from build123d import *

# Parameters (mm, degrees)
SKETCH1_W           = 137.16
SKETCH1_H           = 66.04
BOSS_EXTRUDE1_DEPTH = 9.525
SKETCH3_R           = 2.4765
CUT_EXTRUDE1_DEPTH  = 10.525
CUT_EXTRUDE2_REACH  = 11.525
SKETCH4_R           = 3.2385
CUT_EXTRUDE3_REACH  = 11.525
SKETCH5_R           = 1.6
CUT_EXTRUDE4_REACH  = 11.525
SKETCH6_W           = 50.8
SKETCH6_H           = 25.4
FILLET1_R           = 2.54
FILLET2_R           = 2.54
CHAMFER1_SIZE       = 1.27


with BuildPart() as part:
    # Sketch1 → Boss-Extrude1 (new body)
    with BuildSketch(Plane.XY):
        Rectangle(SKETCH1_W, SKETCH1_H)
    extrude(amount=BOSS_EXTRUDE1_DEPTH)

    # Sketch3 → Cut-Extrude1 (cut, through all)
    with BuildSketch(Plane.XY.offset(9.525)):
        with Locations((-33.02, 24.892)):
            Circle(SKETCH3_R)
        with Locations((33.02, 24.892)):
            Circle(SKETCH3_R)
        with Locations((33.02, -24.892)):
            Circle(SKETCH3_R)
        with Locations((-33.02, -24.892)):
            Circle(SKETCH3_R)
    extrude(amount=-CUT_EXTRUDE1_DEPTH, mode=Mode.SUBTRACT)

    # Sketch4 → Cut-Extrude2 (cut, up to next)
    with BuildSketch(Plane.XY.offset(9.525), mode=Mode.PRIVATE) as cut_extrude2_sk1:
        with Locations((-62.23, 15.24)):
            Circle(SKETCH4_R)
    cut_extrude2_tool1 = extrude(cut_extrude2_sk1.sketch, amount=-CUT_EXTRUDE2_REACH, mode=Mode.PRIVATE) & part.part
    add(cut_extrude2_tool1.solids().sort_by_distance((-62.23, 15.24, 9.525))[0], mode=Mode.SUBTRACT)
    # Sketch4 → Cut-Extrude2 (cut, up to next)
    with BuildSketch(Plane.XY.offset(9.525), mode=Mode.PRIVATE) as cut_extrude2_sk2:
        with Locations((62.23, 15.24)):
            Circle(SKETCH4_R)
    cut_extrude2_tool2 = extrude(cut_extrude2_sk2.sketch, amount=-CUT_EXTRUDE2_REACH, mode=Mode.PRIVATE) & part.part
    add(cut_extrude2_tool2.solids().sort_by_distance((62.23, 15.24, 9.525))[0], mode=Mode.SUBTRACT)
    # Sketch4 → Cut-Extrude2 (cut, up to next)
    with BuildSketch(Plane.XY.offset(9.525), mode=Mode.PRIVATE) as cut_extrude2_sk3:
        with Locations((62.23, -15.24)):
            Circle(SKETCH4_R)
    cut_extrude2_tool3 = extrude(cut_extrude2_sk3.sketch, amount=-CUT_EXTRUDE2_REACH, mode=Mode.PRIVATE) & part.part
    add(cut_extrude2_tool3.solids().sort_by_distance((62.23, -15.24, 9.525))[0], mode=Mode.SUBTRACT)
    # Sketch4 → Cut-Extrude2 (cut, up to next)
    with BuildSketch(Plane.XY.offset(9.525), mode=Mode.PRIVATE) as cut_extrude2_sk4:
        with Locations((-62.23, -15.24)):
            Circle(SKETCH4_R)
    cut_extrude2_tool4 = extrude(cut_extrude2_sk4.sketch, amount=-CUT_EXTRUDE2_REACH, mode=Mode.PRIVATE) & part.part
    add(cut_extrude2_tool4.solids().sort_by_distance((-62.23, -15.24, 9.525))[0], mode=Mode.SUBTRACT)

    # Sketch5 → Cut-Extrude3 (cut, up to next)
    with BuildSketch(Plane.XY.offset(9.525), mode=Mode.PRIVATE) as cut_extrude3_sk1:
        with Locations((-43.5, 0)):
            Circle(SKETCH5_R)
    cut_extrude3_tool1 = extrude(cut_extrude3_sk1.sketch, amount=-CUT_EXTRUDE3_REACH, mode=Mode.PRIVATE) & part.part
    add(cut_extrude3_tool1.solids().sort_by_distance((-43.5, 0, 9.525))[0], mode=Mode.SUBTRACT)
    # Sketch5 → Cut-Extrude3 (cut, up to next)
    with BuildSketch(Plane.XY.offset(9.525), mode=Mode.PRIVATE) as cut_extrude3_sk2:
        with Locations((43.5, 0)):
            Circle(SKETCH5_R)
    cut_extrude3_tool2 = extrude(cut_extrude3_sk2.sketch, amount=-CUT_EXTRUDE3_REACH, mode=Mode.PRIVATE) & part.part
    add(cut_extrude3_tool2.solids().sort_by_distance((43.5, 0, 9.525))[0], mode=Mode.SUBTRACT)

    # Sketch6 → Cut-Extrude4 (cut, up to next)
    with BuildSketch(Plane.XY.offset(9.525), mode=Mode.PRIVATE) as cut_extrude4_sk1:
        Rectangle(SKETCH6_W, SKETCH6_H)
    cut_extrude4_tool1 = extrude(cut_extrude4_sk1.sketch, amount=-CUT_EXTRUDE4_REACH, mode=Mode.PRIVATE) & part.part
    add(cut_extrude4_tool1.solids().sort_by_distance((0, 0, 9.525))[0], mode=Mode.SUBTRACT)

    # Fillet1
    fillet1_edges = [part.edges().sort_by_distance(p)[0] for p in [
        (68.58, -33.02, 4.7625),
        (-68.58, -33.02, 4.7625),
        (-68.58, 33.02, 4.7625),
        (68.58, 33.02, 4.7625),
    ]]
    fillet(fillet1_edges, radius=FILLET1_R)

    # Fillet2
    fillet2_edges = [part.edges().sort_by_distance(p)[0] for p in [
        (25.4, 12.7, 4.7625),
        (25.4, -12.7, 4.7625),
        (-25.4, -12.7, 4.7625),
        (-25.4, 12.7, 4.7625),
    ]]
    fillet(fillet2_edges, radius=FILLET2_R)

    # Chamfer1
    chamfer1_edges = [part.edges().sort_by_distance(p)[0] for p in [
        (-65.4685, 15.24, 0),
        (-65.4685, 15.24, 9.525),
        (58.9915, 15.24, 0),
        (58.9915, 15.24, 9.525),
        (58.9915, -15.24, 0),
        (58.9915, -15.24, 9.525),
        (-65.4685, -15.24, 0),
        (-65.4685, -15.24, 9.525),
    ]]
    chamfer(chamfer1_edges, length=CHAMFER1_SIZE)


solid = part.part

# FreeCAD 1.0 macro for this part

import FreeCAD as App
import Part
import Sketcher
Q = App.Units.Quantity


def edges_at(feature, points):
    """Names of the edges that pass closest to the given points."""
    edges = feature.Shape.Edges
    near = lambda p: min(range(len(edges)), key=lambda i: edges[i].distToShape(Part.Vertex(*p))[0])
    return sorted({f"Edge{near(p) + 1}" for p in points})


def add_polygon(sketch, points):
    """Adds a closed chain of lines whose ends are joined by coincident constraints."""
    first, n = sketch.GeometryCount, len(points)
    for a, b in zip(points, points[1:] + points[:1]):
        sketch.addGeometry(Part.LineSegment(App.Vector(*a, 0), App.Vector(*b, 0)), False)
    for i in range(n):
        sketch.addConstraint(Sketcher.Constraint("Coincident", first + i, 2, first + (i + 1) % n, 1))

doc = App.newDocument("Part")
params = doc.addObject("Spreadsheet::Sheet", "Params")
for row, (alias, value) in enumerate([
    ("sketch1_width", "5.4 in"),
    ("sketch1_height", "2.6 in"),
    ("pad1_length", "0.375 in"),
    ("sketch2_diameter", "0.195 in"),
    ("sketch3_diameter", "0.255 in"),
    ("sketch4_diameter", "0.255 in"),
    ("sketch5_diameter", "0.255 in"),
    ("sketch6_diameter", "0.255 in"),
    ("sketch9_width", "2 in"),
    ("sketch9_height", "1 in"),
    ("fillet_radius", "0.1 in"),
    ("fillet2_radius", "0.1 in"),
    ("chamfer_size", "0.05 in"),
], start=1):
    params.set(f"A{row}", alias)
    params.set(f"B{row}", "=" + value)
    params.setAlias(f"B{row}", alias)

body = doc.addObject("PartDesign::Body", "Body")

sketch1 = doc.addObject("Sketcher::SketchObject", "Sketch")
body.addObject(sketch1)
sketch1.AttachmentSupport = (doc.XY_Plane, [""])
sketch1.MapMode = "FlatFace"
add_polygon(sketch1, [(-69, 33), (-69, -33), (69, -33), (69, 33)])
sketch1.addConstraint(Sketcher.Constraint("Vertical", 0))
sketch1.addConstraint(Sketcher.Constraint("Horizontal", 1))
sketch1.addConstraint(Sketcher.Constraint("Vertical", 2))
sketch1.addConstraint(Sketcher.Constraint("Horizontal", 3))
sketch1.addConstraint(Sketcher.Constraint("Symmetric", 0, 2, 2, 2, -1, 1))
sketch1.addConstraint(Sketcher.Constraint("DistanceX", 1, 1, 1, 2, Q("5.4 in")))
sketch1.addConstraint(Sketcher.Constraint("DistanceY", 0, 2, 0, 1, Q("2.6 in")))
sketch1.setExpression("Constraints[9]", "Params.sketch1_width")
sketch1.setExpression("Constraints[10]", "Params.sketch1_height")
pad1 = doc.addObject("PartDesign::Pad", "Pad")
body.addObject(pad1)
pad1.Profile = sketch1
pad1.setExpression("Length", "Params.pad1_length")

sketch2 = doc.addObject("Sketcher::SketchObject", "Sketch001")
body.addObject(sketch2)
sketch2.AttachmentSupport = (doc.XY_Plane, [""])
sketch2.MapMode = "FlatFace"
sketch2.AttachmentOffset = App.Placement(App.Vector(0, 0, 0.375 * 25.4), App.Rotation())
sketch2.addGeometry(Part.Circle(App.Vector(-33, 24.9, 0), App.Vector(0, 0, 1), 2.5), False)
sketch2.addGeometry(Part.Circle(App.Vector(33, 24.9, 0), App.Vector(0, 0, 1), 2.5), False)
sketch2.addGeometry(Part.Circle(App.Vector(33, -24.9, 0), App.Vector(0, 0, 1), 2.5), False)
sketch2.addGeometry(Part.Circle(App.Vector(-33, -24.9, 0), App.Vector(0, 0, 1), 2.5), False)
sketch2.addConstraint(Sketcher.Constraint("Equal", 0, 1))
sketch2.addConstraint(Sketcher.Constraint("Equal", 1, 2))
sketch2.addConstraint(Sketcher.Constraint("Equal", 2, 3))
sketch2.addConstraint(Sketcher.Constraint("Symmetric", 0, 3, 2, 3, -1, 1))
sketch2.addConstraint(Sketcher.Constraint("Symmetric", 1, 3, 3, 3, -1, 1))
sketch2.addConstraint(Sketcher.Constraint("Symmetric", 0, 3, 1, 3, -2))
sketch2.addConstraint(Sketcher.Constraint("Diameter", 0, Q("0.195 in")))
sketch2.addConstraint(Sketcher.Constraint("DistanceX", 0, 3, -1, 1, Q("1.3 in")))
sketch2.addConstraint(Sketcher.Constraint("DistanceY", -1, 1, 0, 3, Q("0.98 in")))
sketch2.setExpression("Constraints[6]", "Params.sketch2_diameter")
pocket1 = doc.addObject("PartDesign::Pocket", "Pocket")
body.addObject(pocket1)
pocket1.Profile = sketch2
pocket1.Type = "ThroughAll"

sketch3 = doc.addObject("Sketcher::SketchObject", "Sketch002")
body.addObject(sketch3)
sketch3.AttachmentSupport = (doc.XY_Plane, [""])
sketch3.MapMode = "FlatFace"
sketch3.AttachmentOffset = App.Placement(App.Vector(0, 0, 0.375 * 25.4), App.Rotation())
sketch3.addGeometry(Part.Circle(App.Vector(-62.2, 15.2, 0), App.Vector(0, 0, 1), 3.2), False)
sketch3.addConstraint(Sketcher.Constraint("Diameter", 0, Q("0.255 in")))
sketch3.addConstraint(Sketcher.Constraint("DistanceY", -1, 1, 0, 3, Q("0.6 in")))
sketch3.addConstraint(Sketcher.Constraint("DistanceX", 0, 3, -1, 1, Q("2.45 in")))
sketch3.setExpression("Constraints[0]", "Params.sketch3_diameter")
pocket2 = doc.addObject("PartDesign::Pocket", "Pocket001")
body.addObject(pocket2)
pocket2.Profile = sketch3
pocket2.Type = "UpToFirst"

sketch4 = doc.addObject("Sketcher::SketchObject", "Sketch003")
body.addObject(sketch4)
sketch4.AttachmentSupport = (doc.XY_Plane, [""])
sketch4.MapMode = "FlatFace"
sketch4.AttachmentOffset = App.Placement(App.Vector(0, 0, 0.375 * 25.4), App.Rotation())
sketch4.addGeometry(Part.Circle(App.Vector(62.2, 15.2, 0), App.Vector(0, 0, 1), 3.2), False)
sketch4.addConstraint(Sketcher.Constraint("Diameter", 0, Q("0.255 in")))
sketch4.addConstraint(Sketcher.Constraint("DistanceY", -1, 1, 0, 3, Q("0.6 in")))
sketch4.addConstraint(Sketcher.Constraint("DistanceX", -1, 1, 0, 3, Q("2.45 in")))
sketch4.setExpression("Constraints[0]", "Params.sketch4_diameter")
pocket3 = doc.addObject("PartDesign::Pocket", "Pocket002")
body.addObject(pocket3)
pocket3.Profile = sketch4
pocket3.Type = "UpToFirst"

sketch5 = doc.addObject("Sketcher::SketchObject", "Sketch004")
body.addObject(sketch5)
sketch5.AttachmentSupport = (doc.XY_Plane, [""])
sketch5.MapMode = "FlatFace"
sketch5.AttachmentOffset = App.Placement(App.Vector(0, 0, 0.375 * 25.4), App.Rotation())
sketch5.addGeometry(Part.Circle(App.Vector(62.2, -15.2, 0), App.Vector(0, 0, 1), 3.2), False)
sketch5.addConstraint(Sketcher.Constraint("Diameter", 0, Q("0.255 in")))
sketch5.addConstraint(Sketcher.Constraint("DistanceY", 0, 3, -1, 1, Q("0.6 in")))
sketch5.addConstraint(Sketcher.Constraint("DistanceX", -1, 1, 0, 3, Q("2.45 in")))
sketch5.setExpression("Constraints[0]", "Params.sketch5_diameter")
pocket4 = doc.addObject("PartDesign::Pocket", "Pocket003")
body.addObject(pocket4)
pocket4.Profile = sketch5
pocket4.Type = "UpToFirst"

sketch6 = doc.addObject("Sketcher::SketchObject", "Sketch005")
body.addObject(sketch6)
sketch6.AttachmentSupport = (doc.XY_Plane, [""])
sketch6.MapMode = "FlatFace"
sketch6.AttachmentOffset = App.Placement(App.Vector(0, 0, 0.375 * 25.4), App.Rotation())
sketch6.addGeometry(Part.Circle(App.Vector(-62.2, -15.2, 0), App.Vector(0, 0, 1), 3.2), False)
sketch6.addConstraint(Sketcher.Constraint("Diameter", 0, Q("0.255 in")))
sketch6.addConstraint(Sketcher.Constraint("DistanceY", 0, 3, -1, 1, Q("0.6 in")))
sketch6.addConstraint(Sketcher.Constraint("DistanceX", 0, 3, -1, 1, Q("2.45 in")))
sketch6.setExpression("Constraints[0]", "Params.sketch6_diameter")
pocket5 = doc.addObject("PartDesign::Pocket", "Pocket004")
body.addObject(pocket5)
pocket5.Profile = sketch6
pocket5.Type = "UpToFirst"

sketch7 = doc.addObject("Sketcher::SketchObject", "Sketch006")
body.addObject(sketch7)
sketch7.AttachmentSupport = (doc.XY_Plane, [""])
sketch7.MapMode = "FlatFace"
sketch7.AttachmentOffset = App.Placement(App.Vector(0, 0, 0.375 * 25.4), App.Rotation())
sketch7.addGeometry(Part.Circle(App.Vector(-43.5, 0, 0), App.Vector(0, 0, 1), 1.6), False)
sketch7.addConstraint(Sketcher.Constraint("PointOnObject", 0, 3, -1))
sketch7.addConstraint(Sketcher.Constraint("Diameter", 0, Q("3.2 mm")))
sketch7.addConstraint(Sketcher.Constraint("DistanceX", 0, 3, -1, 1, Q("43.5 mm")))
pocket6 = doc.addObject("PartDesign::Pocket", "Pocket005")
body.addObject(pocket6)
pocket6.Profile = sketch7
pocket6.Type = "UpToFirst"

sketch8 = doc.addObject("Sketcher::SketchObject", "Sketch007")
body.addObject(sketch8)
sketch8.AttachmentSupport = (doc.XY_Plane, [""])
sketch8.MapMode = "FlatFace"
sketch8.AttachmentOffset = App.Placement(App.Vector(0, 0, 0.375 * 25.4), App.Rotation())
sketch8.addGeometry(Part.Circle(App.Vector(43.5, 0, 0), App.Vector(0, 0, 1), 1.6), False)
sketch8.addConstraint(Sketcher.Constraint("PointOnObject", 0, 3, -1))
sketch8.addConstraint(Sketcher.Constraint("Diameter", 0, Q("3.2 mm")))
sketch8.addConstraint(Sketcher.Constraint("DistanceX", -1, 1, 0, 3, Q("43.5 mm")))
pocket7 = doc.addObject("PartDesign::Pocket", "Pocket006")
body.addObject(pocket7)
pocket7.Profile = sketch8
pocket7.Type = "UpToFirst"

sketch9 = doc.addObject("Sketcher::SketchObject", "Sketch008")
body.addObject(sketch9)
sketch9.AttachmentSupport = (doc.XY_Plane, [""])
sketch9.MapMode = "FlatFace"
sketch9.AttachmentOffset = App.Placement(App.Vector(0, 0, 0.375 * 25.4), App.Rotation())
add_polygon(sketch9, [(-25, 13), (-25, -13), (25, -13), (25, 13)])
sketch9.addConstraint(Sketcher.Constraint("Vertical", 0))
sketch9.addConstraint(Sketcher.Constraint("Horizontal", 1))
sketch9.addConstraint(Sketcher.Constraint("Vertical", 2))
sketch9.addConstraint(Sketcher.Constraint("Horizontal", 3))
sketch9.addConstraint(Sketcher.Constraint("Symmetric", 0, 2, 2, 2, -1, 1))
sketch9.addConstraint(Sketcher.Constraint("DistanceX", 1, 1, 1, 2, Q("2 in")))
sketch9.addConstraint(Sketcher.Constraint("DistanceY", 0, 2, 0, 1, Q("1 in")))
sketch9.setExpression("Constraints[9]", "Params.sketch9_width")
sketch9.setExpression("Constraints[10]", "Params.sketch9_height")
pocket8 = doc.addObject("PartDesign::Pocket", "Pocket007")
body.addObject(pocket8)
pocket8.Profile = sketch9
pocket8.Type = "UpToFirst"
doc.recompute()

fillet = doc.addObject("PartDesign::Fillet", "Fillet")
body.addObject(fillet)
fillet.Base = (pocket8, edges_at(pocket8, [
    (68.58, -33.02, 4.763),
    (-68.58, -33.02, 4.763),
    (-68.58, 33.02, 4.763),
    (68.58, 33.02, 4.763),
]))
fillet.setExpression("Radius", "Params.fillet_radius")
doc.recompute()

fillet2 = doc.addObject("PartDesign::Fillet", "Fillet001")
body.addObject(fillet2)
fillet2.Base = (fillet, edges_at(fillet, [
    (25.4, 12.7, 4.763),
    (25.4, -12.7, 4.763),
    (-25.4, -12.7, 4.763),
    (-25.4, 12.7, 4.763),
]))
fillet2.setExpression("Radius", "Params.fillet2_radius")
doc.recompute()

chamfer = doc.addObject("PartDesign::Chamfer", "Chamfer")
body.addObject(chamfer)
chamfer.Base = (fillet2, edges_at(fillet2, [
    (-65.469, 15.24, 0),
    (-65.469, 15.24, 9.525),
    (58.992, 15.24, 0),
    (58.992, 15.24, 9.525),
    (58.992, -15.24, 0),
    (58.992, -15.24, 9.525),
    (-65.469, -15.24, 0),
    (-65.469, -15.24, 9.525),
]))
chamfer.setExpression("Size", "Params.chamfer_size")

doc.recompute()
